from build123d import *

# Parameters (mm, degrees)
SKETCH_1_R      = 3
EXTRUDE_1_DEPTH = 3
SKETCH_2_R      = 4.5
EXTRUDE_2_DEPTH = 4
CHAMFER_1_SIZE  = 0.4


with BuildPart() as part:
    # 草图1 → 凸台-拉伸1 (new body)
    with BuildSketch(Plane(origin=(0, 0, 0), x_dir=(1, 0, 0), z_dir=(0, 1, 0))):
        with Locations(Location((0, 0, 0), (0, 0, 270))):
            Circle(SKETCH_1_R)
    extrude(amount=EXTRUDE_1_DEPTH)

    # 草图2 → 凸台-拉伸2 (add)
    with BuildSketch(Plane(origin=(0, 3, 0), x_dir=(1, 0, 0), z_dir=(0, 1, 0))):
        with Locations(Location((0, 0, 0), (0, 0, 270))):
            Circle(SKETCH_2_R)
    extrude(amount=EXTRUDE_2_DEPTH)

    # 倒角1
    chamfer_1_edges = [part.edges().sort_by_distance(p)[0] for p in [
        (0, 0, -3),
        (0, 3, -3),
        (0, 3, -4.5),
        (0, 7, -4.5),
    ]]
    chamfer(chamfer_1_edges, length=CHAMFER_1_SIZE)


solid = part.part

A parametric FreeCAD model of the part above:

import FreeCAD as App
import Part
import Sketcher
Q = App.Units.Quantity


def edges_at(feature, points):
    """Names of the edges that pass closest to the given points."""
    edges = feature.Shape.Edges
    near = lambda p: min(range(len(edges)), key=lambda i: edges[i].distToShape(Part.Vertex(*p))[0])
    return sorted({f"Edge{near(p) + 1}" for p in points})

doc = App.newDocument("Part")
body = doc.addObject("PartDesign::Body", "Body")

# Sketch on XZ plane
sketch1 = body.newObject("Sketcher::SketchObject", "Sketch")
sketch1.AttachmentSupport = (doc.getObject("XZ_Plane"), [""])
sketch1.MapMode = "FlatFace"
sketch1.addGeometry(Part.Circle(App.Vector(0, 0, 0), App.Vector(0, 0, 1), 3), False)
sketch1.addConstraint([
    Sketcher.Constraint("Coincident", 0, 3, -1, 1),
    Sketcher.Constraint("Diameter", 0, Q("6 mm")),
])
pad1 = body.newObject("PartDesign::Pad", "Pad")
pad1.Profile = sketch1
pad1.Length = 3
pad1.Reversed = True

# Sketch on XZ plane
sketch2 = body.newObject("Sketcher::SketchObject", "Sketch001")
sketch2.AttachmentSupport = (doc.getObject("XZ_Plane"), [""])
sketch2.MapMode = "FlatFace"
sketch2.AttachmentOffset = App.Placement(App.Vector(0, 0, -3), App.Rotation())
sketch2.addGeometry(Part.Circle(App.Vector(0, 0, 0), App.Vector(0, 0, 1), 4.5), False)
sketch2.addConstraint([
    Sketcher.Constraint("Coincident", 0, 3, -1, 1),
    Sketcher.Constraint("Diameter", 0, Q("9 mm")),
])
pad2 = body.newObject("PartDesign::Pad", "Pad001")
pad2.Profile = sketch2
pad2.Length = 4
pad2.Reversed = True
doc.recompute()

chamfer = body.newObject("PartDesign::Chamfer", "Chamfer")
chamfer.Base = (pad2, edges_at(pad2, [
    (0, 0, -3),
    (0, 3, -3),
    (0, 3, -4.5),
    (0, 7, -4.5),
]))
chamfer.Size = 0.4

doc.recompute()
